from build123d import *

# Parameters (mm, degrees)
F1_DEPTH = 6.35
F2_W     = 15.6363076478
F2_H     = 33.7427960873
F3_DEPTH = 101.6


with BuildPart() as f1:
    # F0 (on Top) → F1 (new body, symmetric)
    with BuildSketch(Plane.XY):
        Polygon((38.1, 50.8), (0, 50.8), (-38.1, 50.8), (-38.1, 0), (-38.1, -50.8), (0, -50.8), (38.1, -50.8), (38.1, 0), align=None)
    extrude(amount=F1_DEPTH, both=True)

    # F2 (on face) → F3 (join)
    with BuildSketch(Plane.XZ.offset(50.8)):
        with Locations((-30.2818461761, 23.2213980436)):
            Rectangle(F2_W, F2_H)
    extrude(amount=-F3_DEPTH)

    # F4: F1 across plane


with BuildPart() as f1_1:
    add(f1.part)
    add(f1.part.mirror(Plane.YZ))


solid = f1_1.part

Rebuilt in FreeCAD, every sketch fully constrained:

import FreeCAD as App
import Part
import Sketcher
from FreeCAD import Vector
Q = App.Units.Quantity

doc = App.newDocument("Part")
body = doc.addObject("PartDesign::Body", "Body")

# Sketch on XY plane
sketch1 = doc.addObject("Sketcher::SketchObject", "Sketch")
body.addObject(sketch1)
sketch1.AttachmentSupport = (doc.XY_Plane, [""])
sketch1.MapMode = "FlatFace"
sketch1.addGeometry([
    Part.LineSegment(Vector(38.1, 50.8, 0), Vector(-38.1, 50.8, 0)),
    Part.LineSegment(Vector(-38.1, 50.8, 0), Vector(-38.1, -50.8, 0)),
    Part.LineSegment(Vector(-38.1, -50.8, 0), Vector(38.1, -50.8, 0)),
    Part.LineSegment(Vector(38.1, -50.8, 0), Vector(38.1, 50.8, 0)),
], False)
sketch1.addConstraint([
    Sketcher.Constraint("Coincident", 0, 2, 1, 1),
    Sketcher.Constraint("Coincident", 1, 2, 2, 1),
    Sketcher.Constraint("Coincident", 2, 2, 3, 1),
    Sketcher.Constraint("Coincident", 3, 2, 0, 1),
    Sketcher.Constraint("Horizontal", 0),
    Sketcher.Constraint("Vertical", 1),
    Sketcher.Constraint("Horizontal", 2),
    Sketcher.Constraint("Vertical", 3),
    Sketcher.Constraint("Symmetric", 0, 2, 2, 2, -1, 1),
    Sketcher.Constraint("DistanceX", 0, 2, 0, 1, Q("3 in")),
    Sketcher.Constraint("DistanceY", 1, 2, 1, 1, Q("4 in")),
])
pad1 = doc.addObject("PartDesign::Pad", "Pad")
body.addObject(pad1)
pad1.Profile = sketch1
pad1.Length = Q("0.5 in")
pad1.Midplane = True

# Sketch on XZ plane
sketch2 = doc.addObject("Sketcher::SketchObject", "Sketch001")
body.addObject(sketch2)
sketch2.AttachmentSupport = (doc.XZ_Plane, [""])
sketch2.MapMode = "FlatFace"
sketch2.AttachmentOffset = App.Placement(Vector(0, 0, 2 * 25.4), App.Rotation())
sketch2.addGeometry([
    Part.LineSegment(Vector(-38.1, 40.092796, 0), Vector(-38.1, 6.35, 0)),
    Part.LineSegment(Vector(-38.1, 6.35, 0), Vector(-22.463692, 6.35, 0)),
    Part.LineSegment(Vector(-22.463692, 6.35, 0), Vector(-22.463692, 40.092796, 0)),
    Part.LineSegment(Vector(-22.463692, 40.092796, 0), Vector(-38.1, 40.092796, 0)),
], False)
sketch2.addConstraint([
    Sketcher.Constraint("Coincident", 0, 2, 1, 1),
    Sketcher.Constraint("Coincident", 1, 2, 2, 1),
    Sketcher.Constraint("Coincident", 2, 2, 3, 1),
    Sketcher.Constraint("Coincident", 3, 2, 0, 1),
    Sketcher.Constraint("Vertical", 0),
    Sketcher.Constraint("Horizontal", 1),
    Sketcher.Constraint("Vertical", 2),
    Sketcher.Constraint("Horizontal", 3),
    Sketcher.Constraint("DistanceX", 0, 2, -1, 1, Q("1.5 in")),
    Sketcher.Constraint("DistanceY", -1, 1, 0, 2, Q("0.25 in")),
    Sketcher.Constraint("DistanceX", 1, 1, 1, 2, Q("15.636308 mm")),
    Sketcher.Constraint("DistanceY", 0, 2, 0, 1, Q("33.742796 mm")),
])
pad2 = doc.addObject("PartDesign::Pad", "Pad001")
body.addObject(pad2)
pad2.Profile = sketch2
pad2.Length = Q("4 in")
pad2.Reversed = True
body2 = doc.addObject("PartDesign::Body", "Body001")
doc.recompute()

body2.BaseFeature = body
doc.recompute()

mirroring = doc.addObject("Part::Mirroring", "Mirroring")
mirroring.Source = body
mirroring.Base = Vector(0, 0, 0)
mirroring.Normal = Vector(1, 0, 0)
body3 = doc.addObject("PartDesign::Body", "Body002")
body3.BaseFeature = mirroring
boolean = doc.addObject("PartDesign::Boolean", "Boolean")
body2.addObject(boolean)
boolean.Type = "Fuse"
boolean.addObjects([body3])
doc.recompute()
mirroring.Visibility = False

doc.recompute()
